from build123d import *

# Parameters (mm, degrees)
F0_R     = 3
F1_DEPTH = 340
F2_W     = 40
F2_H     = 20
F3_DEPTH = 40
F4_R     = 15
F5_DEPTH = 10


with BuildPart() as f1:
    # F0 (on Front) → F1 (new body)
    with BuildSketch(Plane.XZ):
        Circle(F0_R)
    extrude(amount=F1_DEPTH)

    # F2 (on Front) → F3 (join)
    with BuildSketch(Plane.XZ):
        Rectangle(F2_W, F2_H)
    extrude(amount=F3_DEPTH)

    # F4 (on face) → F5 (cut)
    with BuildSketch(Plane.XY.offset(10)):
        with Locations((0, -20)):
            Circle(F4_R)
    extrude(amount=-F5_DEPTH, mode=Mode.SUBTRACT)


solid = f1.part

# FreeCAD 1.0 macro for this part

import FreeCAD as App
import Part
import Sketcher


def add_polygon(sketch, points):
    """Adds a closed chain of lines whose ends are joined by coincident constraints."""
    first, n = sketch.GeometryCount, len(points)
    for a, b in zip(points, points[1:] + points[:1]):
        sketch.addGeometry(Part.LineSegment(App.Vector(*a, 0), App.Vector(*b, 0)), False)
    for i in range(n):
        sketch.addConstraint(Sketcher.Constraint("Coincident", first + i, 2, first + (i + 1) % n, 1))

doc = App.newDocument("Part")
body = doc.addObject("PartDesign::Body", "Body")

# Sketch on XZ plane
sketch1 = body.newObject("Sketcher::SketchObject", "Sketch")
sketch1.AttachmentSupport = (doc.getObject("XZ_Plane"), [""])
sketch1.MapMode = "FlatFace"
sketch1.addGeometry(Part.Circle(App.Vector(0, 0, 0), App.Vector(0, 0, 1), 3), False)
sketch1.addConstraint([
    Sketcher.Constraint("Coincident", 0, 3, -1, 1),
    Sketcher.Constraint("Diameter", 0, 6.0),
])
pad1 = body.newObject("PartDesign::Pad", "Pad")
pad1.Profile = sketch1
pad1.Length = 340

# Sketch on XZ plane
sketch2 = body.newObject("Sketcher::SketchObject", "Sketch001")
sketch2.AttachmentSupport = (doc.getObject("XZ_Plane"), [""])
sketch2.MapMode = "FlatFace"
add_polygon(sketch2, [(-20, 10), (-20, -10), (20, -10), (20, 10)])  # lines 0-3
sketch2.addConstraint([
    Sketcher.Constraint("Vertical", 0),
    Sketcher.Constraint("Horizontal", 1),
    Sketcher.Constraint("Vertical", 2),
    Sketcher.Constraint("Horizontal", 3),
    Sketcher.Constraint("Symmetric", 0, 2, 2, 2, -1, 1),
    Sketcher.Constraint("DistanceX", 1, 1, 1, 2, 40.0),
    Sketcher.Constraint("DistanceY", 0, 2, 0, 1, 20.0),
])
pad2 = body.newObject("PartDesign::Pad", "Pad001")
pad2.Profile = sketch2
pad2.Length = 40

# Sketch on XY plane
sketch3 = body.newObject("Sketcher::SketchObject", "Sketch002")
sketch3.AttachmentSupport = (doc.getObject("XY_Plane"), [""])
sketch3.MapMode = "FlatFace"
sketch3.AttachmentOffset = App.Placement(App.Vector(0, 0, 10), App.Rotation())
sketch3.addGeometry(Part.Circle(App.Vector(0, -20, 0), App.Vector(0, 0, 1), 15), False)
sketch3.addConstraint([
    Sketcher.Constraint("PointOnObject", 0, 3, -2),
    Sketcher.Constraint("Diameter", 0, 30.0),
    Sketcher.Constraint("DistanceY", 0, 3, -1, 1, 20.0),
])
pocket1 = body.newObject("PartDesign::Pocket", "Pocket")
pocket1.Profile = sketch3
pocket1.Length = 10

doc.recompute()
